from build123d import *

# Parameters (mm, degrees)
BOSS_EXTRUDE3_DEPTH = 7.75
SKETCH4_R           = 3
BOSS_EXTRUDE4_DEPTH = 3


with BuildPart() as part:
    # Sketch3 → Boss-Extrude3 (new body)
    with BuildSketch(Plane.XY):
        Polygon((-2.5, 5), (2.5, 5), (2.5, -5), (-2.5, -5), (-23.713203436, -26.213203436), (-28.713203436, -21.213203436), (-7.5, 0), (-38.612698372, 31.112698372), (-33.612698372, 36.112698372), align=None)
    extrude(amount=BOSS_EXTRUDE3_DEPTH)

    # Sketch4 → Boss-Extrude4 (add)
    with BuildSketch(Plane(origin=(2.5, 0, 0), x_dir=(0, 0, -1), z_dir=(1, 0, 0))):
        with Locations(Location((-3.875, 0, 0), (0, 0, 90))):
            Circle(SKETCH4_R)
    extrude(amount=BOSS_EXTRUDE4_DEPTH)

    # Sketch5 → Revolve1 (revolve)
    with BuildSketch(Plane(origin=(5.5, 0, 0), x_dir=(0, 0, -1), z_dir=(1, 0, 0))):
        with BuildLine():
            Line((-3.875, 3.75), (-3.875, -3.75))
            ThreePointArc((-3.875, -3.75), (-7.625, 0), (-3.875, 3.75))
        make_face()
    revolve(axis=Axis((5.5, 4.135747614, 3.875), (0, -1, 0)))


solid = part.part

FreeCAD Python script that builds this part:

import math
import FreeCAD as App
import Part
import Sketcher
Q = App.Units.Quantity


def add_polygon(sketch, points):
    """Adds a closed chain of lines whose ends are joined by coincident constraints."""
    first, n = sketch.GeometryCount, len(points)
    for a, b in zip(points, points[1:] + points[:1]):
        sketch.addGeometry(Part.LineSegment(App.Vector(*a, 0), App.Vector(*b, 0)), False)
    for i in range(n):
        sketch.addConstraint(Sketcher.Constraint("Coincident", first + i, 2, first + (i + 1) % n, 1))

doc = App.newDocument("Part")
body = doc.addObject("PartDesign::Body", "Body")

sketch1 = doc.addObject("Sketcher::SketchObject", "Sketch")
body.addObject(sketch1)
sketch1.AttachmentSupport = (doc.XY_Plane, [""])
sketch1.MapMode = "FlatFace"
add_polygon(sketch1, [(2, 5), (-2, 5), (-34, 36), (-39, 31), (-8, 0), (-29, -21), (-24, -26), (-2, -5), (2, -5)])
sketch1.addConstraint([
    Sketcher.Constraint("Horizontal", 0),
    Sketcher.Constraint("Horizontal", 7),
    Sketcher.Constraint("Vertical", 8),
    Sketcher.Constraint("Symmetric", 0, 2, 7, 2, -1, 1),
    Sketcher.Constraint("PointOnObject", 3, 2, -1),
    Sketcher.Constraint("Perpendicular", 1, 2),
    Sketcher.Constraint("Perpendicular", 2, 3),
    Sketcher.Constraint("Perpendicular", 3, 4),
    Sketcher.Constraint("Perpendicular", 4, 5),
    Sketcher.Constraint("Perpendicular", 5, 6),
    Sketcher.Constraint("Vertical", 0, 2, 6, 2),
    Sketcher.Constraint("Equal", 1, 3),
    Sketcher.Constraint("Equal", 4, 6),
    Sketcher.Constraint("DistanceX", 0, 2, 0, 1, Q("5 mm")),
    Sketcher.Constraint("DistanceY", 8, 1, 8, 2, Q("10 mm")),
    Sketcher.Constraint("Distance", 1, Q("44 mm")),
    Sketcher.Constraint("Distance", 4, Q("30 mm")),
])
pad1 = doc.addObject("PartDesign::Pad", "Pad")
body.addObject(pad1)
pad1.Profile = sketch1
pad1.Length = 7.75

sketch2 = doc.addObject("Sketcher::SketchObject", "Sketch001")
body.addObject(sketch2)
sketch2.AttachmentSupport = (doc.YZ_Plane, [""])
sketch2.MapMode = "FlatFace"
sketch2.AttachmentOffset = App.Placement(App.Vector(0, 0, 2.5), App.Rotation())
sketch2.addGeometry(Part.Circle(App.Vector(0, 3.9, 0), App.Vector(0, 0, 1), 3), False)
sketch2.addConstraint([
    Sketcher.Constraint("PointOnObject", 0, 3, -2),
    Sketcher.Constraint("Diameter", 0, Q("6 mm")),
    Sketcher.Constraint("DistanceY", -1, 1, 0, 3, Q("3.875 mm")),
])
pad2 = doc.addObject("PartDesign::Pad", "Pad001")
body.addObject(pad2)
pad2.Profile = sketch2
pad2.Length = 3

sketch3 = doc.addObject("Sketcher::SketchObject", "Sketch002")
body.addObject(sketch3)
sketch3.AttachmentSupport = (doc.YZ_Plane, [""])
sketch3.MapMode = "FlatFace"
sketch3.AttachmentOffset = App.Placement(App.Vector(0, 0, 5.5), App.Rotation())
sketch3.addGeometry([
    Part.LineSegment(App.Vector(-3.8, 3.9, 0), App.Vector(3.8, 3.9, 0)),
    Part.ArcOfCircle(Part.Circle(App.Vector(0, 3.9, 0), App.Vector(0, 0, 1), 3.8), math.radians(0), math.radians(180)),
], False)
sketch3.addGeometry(Part.LineSegment(App.Vector(3.8, 3.9, 0), App.Vector(-3.8, 3.9, 0)), True)
sketch3.addConstraint([
    Sketcher.Constraint("Coincident", 0, 1, 1, 2),
    Sketcher.Constraint("Coincident", 1, 1, 0, 2),
    Sketcher.Constraint("Horizontal", 0),
    Sketcher.Constraint("Horizontal", 2),
    Sketcher.Constraint("Coincident", 2, 1, 1, 1),
    Sketcher.Constraint("PointOnObject", 1, 3, -2),
    Sketcher.Constraint("Horizontal", 1, 3, 0, 1),
    Sketcher.Constraint("Equal", 0, 2),
    Sketcher.Constraint("Radius", 1, Q("3.75 mm")),
    Sketcher.Constraint("DistanceY", -1, 1, 1, 3, Q("3.875 mm")),
])
revolution = doc.addObject("PartDesign::Revolution", "Revolution")
body.addObject(revolution)
revolution.Profile = sketch3
revolution.ReferenceAxis = (sketch3, ["Axis0"])
revolution.Angle = 360

doc.recompute()
